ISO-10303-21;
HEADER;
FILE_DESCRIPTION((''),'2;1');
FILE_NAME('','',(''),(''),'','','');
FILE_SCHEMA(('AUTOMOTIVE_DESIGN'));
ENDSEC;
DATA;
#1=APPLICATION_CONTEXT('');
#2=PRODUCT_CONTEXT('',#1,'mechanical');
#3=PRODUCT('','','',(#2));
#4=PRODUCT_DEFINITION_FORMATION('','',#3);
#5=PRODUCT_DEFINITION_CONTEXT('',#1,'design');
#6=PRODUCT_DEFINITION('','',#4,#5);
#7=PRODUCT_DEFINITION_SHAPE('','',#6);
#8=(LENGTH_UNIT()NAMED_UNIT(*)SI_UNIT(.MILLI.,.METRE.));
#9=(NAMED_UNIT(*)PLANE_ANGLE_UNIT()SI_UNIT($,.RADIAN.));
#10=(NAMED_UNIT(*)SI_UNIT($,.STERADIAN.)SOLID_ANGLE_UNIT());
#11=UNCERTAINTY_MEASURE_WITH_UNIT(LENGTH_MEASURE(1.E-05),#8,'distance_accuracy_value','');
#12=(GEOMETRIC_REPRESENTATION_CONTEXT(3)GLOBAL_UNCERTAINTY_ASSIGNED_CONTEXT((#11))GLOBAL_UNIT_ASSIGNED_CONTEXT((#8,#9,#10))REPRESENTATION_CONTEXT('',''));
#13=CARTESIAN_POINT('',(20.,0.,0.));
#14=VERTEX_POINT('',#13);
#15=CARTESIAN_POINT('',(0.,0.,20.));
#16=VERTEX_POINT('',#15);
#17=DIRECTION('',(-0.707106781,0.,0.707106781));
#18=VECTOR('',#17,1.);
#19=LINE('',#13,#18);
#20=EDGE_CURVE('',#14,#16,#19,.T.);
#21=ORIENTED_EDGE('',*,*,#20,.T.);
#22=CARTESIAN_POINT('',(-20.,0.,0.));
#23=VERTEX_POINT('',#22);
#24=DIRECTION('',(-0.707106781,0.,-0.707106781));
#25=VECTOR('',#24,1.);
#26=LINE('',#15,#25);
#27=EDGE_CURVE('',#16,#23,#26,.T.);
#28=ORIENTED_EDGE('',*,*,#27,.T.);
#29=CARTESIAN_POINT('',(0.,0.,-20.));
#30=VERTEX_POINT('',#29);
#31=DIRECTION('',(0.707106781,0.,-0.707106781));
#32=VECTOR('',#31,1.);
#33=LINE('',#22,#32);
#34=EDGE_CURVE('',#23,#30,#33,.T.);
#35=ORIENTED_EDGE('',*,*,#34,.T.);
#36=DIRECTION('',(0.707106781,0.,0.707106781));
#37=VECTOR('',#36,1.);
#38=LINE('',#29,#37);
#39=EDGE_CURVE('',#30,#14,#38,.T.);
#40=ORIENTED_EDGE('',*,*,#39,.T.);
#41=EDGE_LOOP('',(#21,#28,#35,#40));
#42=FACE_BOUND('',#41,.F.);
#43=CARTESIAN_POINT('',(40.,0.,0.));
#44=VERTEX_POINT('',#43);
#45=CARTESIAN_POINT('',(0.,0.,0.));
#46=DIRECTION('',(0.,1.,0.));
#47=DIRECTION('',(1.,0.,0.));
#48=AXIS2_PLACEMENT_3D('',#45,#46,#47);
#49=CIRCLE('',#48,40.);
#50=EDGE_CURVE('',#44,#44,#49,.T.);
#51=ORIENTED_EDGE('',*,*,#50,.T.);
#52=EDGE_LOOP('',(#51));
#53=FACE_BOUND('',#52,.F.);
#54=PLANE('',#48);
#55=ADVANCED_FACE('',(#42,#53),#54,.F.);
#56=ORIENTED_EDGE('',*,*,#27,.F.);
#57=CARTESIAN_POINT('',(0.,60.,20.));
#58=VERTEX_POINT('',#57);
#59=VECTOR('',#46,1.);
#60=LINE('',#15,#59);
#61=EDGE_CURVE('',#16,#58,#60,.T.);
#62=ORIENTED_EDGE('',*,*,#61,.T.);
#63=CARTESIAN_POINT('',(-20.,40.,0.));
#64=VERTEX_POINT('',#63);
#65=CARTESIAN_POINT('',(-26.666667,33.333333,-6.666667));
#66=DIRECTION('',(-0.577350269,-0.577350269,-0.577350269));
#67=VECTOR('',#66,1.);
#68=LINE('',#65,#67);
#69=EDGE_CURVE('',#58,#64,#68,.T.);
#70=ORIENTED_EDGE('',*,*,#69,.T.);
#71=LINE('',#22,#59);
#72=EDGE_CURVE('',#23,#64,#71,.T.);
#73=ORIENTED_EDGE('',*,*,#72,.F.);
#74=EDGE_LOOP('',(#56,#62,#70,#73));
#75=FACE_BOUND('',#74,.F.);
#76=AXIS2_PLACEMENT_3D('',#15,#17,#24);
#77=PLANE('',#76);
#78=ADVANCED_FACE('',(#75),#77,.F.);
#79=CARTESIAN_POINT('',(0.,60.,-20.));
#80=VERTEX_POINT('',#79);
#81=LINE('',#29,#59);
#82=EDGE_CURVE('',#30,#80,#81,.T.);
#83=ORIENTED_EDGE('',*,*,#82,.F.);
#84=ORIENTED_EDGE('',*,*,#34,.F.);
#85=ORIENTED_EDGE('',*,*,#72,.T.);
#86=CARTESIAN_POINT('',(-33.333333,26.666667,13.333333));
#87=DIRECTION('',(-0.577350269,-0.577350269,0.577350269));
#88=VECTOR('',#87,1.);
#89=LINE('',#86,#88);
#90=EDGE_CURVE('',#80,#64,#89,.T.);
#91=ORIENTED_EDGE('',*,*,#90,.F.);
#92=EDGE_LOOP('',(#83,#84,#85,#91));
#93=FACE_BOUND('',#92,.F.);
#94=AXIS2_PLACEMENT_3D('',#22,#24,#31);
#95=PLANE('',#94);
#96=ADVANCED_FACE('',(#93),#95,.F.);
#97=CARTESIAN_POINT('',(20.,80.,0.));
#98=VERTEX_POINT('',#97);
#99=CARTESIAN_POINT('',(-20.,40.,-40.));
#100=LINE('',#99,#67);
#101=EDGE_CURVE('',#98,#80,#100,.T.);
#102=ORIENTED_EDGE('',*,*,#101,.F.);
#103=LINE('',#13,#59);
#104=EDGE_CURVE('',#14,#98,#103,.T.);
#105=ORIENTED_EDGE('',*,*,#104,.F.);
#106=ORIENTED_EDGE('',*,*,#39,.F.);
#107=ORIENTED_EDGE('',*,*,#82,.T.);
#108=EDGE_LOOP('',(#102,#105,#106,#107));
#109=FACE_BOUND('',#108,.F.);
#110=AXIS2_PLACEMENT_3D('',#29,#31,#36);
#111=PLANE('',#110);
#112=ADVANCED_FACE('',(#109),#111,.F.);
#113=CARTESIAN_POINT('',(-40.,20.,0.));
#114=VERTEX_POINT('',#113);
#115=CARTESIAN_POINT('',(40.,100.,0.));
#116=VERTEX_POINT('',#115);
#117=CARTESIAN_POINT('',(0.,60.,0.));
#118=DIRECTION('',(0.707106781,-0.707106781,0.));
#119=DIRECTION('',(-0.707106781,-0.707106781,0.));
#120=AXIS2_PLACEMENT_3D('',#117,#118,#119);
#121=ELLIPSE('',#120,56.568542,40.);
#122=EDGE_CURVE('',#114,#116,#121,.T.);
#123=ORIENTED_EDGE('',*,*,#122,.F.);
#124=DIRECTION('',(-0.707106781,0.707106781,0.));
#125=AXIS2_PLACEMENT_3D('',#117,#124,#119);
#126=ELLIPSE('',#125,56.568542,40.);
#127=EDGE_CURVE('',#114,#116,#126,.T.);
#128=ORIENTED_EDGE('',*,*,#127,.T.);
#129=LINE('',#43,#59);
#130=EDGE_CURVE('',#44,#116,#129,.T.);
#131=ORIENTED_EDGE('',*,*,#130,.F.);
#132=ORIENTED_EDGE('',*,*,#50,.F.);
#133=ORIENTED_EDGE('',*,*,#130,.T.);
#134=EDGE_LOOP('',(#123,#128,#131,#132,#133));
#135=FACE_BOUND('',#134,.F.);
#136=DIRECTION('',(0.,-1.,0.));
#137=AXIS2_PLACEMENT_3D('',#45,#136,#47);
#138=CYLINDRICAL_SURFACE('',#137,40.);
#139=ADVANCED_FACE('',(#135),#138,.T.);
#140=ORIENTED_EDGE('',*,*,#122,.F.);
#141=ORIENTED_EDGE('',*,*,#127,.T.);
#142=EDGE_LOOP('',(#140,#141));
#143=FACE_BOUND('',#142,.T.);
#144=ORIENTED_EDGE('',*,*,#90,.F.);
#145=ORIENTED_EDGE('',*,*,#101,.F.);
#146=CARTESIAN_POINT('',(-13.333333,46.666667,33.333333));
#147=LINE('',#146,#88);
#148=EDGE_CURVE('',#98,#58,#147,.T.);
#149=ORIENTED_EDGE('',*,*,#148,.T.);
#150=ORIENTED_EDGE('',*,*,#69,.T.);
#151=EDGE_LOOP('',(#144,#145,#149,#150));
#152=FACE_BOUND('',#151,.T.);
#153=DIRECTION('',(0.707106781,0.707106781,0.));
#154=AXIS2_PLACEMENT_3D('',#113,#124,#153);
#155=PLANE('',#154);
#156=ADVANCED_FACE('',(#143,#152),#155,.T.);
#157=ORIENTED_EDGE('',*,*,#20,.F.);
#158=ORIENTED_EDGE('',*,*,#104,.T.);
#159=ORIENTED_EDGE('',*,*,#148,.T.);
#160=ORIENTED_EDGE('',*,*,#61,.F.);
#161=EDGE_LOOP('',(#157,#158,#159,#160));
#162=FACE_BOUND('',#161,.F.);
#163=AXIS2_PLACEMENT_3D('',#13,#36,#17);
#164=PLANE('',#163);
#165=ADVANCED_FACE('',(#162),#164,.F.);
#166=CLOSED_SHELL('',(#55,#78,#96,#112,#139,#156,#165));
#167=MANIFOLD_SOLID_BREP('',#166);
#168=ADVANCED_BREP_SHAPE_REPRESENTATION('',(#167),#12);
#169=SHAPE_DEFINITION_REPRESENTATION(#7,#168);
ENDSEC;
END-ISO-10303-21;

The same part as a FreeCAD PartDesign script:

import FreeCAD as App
import Part
import Sketcher
from FreeCAD import Vector


def add_polygon(sketch, points):
    """Adds a closed chain of lines whose ends are joined by coincident constraints."""
    first, n = sketch.GeometryCount, len(points)
    for a, b in zip(points, points[1:] + points[:1]):
        sketch.addGeometry(Part.LineSegment(App.Vector(*a, 0), App.Vector(*b, 0)), False)
    for i in range(n):
        sketch.addConstraint(Sketcher.Constraint("Coincident", first + i, 2, first + (i + 1) % n, 1))

doc = App.newDocument("Part")
body = doc.addObject("PartDesign::Body", "Body")

sketch1 = doc.addObject("Sketcher::SketchObject", "Sketch")
body.addObject(sketch1)
sketch1.AttachmentSupport = (doc.XZ_Plane, [""])
sketch1.MapMode = "FlatFace"
sketch1.addGeometry(Part.Circle(Vector(0, 0, 0), Vector(0, 0, 1), 40), False)
add_polygon(sketch1, [(20, 0), (0, 20), (-20, 0), (0, -20)])
sketch1.addConstraint([
    Sketcher.Constraint("Coincident", 0, 3, -1, 1),
    Sketcher.Constraint("Symmetric", 1, 2, 3, 2, -1, 1),
    Sketcher.Constraint("Symmetric", 2, 2, 4, 2, -1, 1),
    Sketcher.Constraint("PointOnObject", 1, 2, -2),
    Sketcher.Constraint("PointOnObject", 2, 2, -1),
    Sketcher.Constraint("Perpendicular", 1, 2),
    Sketcher.Constraint("Diameter", 0, 80.0),
    Sketcher.Constraint("DistanceY", -1, 1, 1, 2, 20.0),
])
pad1 = doc.addObject("PartDesign::Pad", "Pad")
body.addObject(pad1)
pad1.Profile = sketch1
pad1.Length = 100
pad1.Reversed = True

sketch2 = doc.addObject("Sketcher::SketchObject", "Sketch001")
body.addObject(sketch2)
sketch2.AttachmentSupport = (doc.XY_Plane, [""])
sketch2.MapMode = "FlatFace"
add_polygon(sketch2, [(-40, 20), (40, 100), (-40, 100)])
sketch2.addConstraint([
    Sketcher.Constraint("Horizontal", 1),
    Sketcher.Constraint("Vertical", 2),
    Sketcher.Constraint("Equal", 1, 2),
    Sketcher.Constraint("DistanceX", 1, 2, 1, 1, 80.0),
    Sketcher.Constraint("DistanceX", -1, 1, 0, 2, 40.0),
    Sketcher.Constraint("DistanceY", -1, 1, 0, 2, 100.0),
])
pocket1 = doc.addObject("PartDesign::Pocket", "Pocket")
body.addObject(pocket1)
pocket1.Profile = sketch2
pocket1.Type = "ThroughAll"
pocket1.Midplane = True

doc.recompute()
